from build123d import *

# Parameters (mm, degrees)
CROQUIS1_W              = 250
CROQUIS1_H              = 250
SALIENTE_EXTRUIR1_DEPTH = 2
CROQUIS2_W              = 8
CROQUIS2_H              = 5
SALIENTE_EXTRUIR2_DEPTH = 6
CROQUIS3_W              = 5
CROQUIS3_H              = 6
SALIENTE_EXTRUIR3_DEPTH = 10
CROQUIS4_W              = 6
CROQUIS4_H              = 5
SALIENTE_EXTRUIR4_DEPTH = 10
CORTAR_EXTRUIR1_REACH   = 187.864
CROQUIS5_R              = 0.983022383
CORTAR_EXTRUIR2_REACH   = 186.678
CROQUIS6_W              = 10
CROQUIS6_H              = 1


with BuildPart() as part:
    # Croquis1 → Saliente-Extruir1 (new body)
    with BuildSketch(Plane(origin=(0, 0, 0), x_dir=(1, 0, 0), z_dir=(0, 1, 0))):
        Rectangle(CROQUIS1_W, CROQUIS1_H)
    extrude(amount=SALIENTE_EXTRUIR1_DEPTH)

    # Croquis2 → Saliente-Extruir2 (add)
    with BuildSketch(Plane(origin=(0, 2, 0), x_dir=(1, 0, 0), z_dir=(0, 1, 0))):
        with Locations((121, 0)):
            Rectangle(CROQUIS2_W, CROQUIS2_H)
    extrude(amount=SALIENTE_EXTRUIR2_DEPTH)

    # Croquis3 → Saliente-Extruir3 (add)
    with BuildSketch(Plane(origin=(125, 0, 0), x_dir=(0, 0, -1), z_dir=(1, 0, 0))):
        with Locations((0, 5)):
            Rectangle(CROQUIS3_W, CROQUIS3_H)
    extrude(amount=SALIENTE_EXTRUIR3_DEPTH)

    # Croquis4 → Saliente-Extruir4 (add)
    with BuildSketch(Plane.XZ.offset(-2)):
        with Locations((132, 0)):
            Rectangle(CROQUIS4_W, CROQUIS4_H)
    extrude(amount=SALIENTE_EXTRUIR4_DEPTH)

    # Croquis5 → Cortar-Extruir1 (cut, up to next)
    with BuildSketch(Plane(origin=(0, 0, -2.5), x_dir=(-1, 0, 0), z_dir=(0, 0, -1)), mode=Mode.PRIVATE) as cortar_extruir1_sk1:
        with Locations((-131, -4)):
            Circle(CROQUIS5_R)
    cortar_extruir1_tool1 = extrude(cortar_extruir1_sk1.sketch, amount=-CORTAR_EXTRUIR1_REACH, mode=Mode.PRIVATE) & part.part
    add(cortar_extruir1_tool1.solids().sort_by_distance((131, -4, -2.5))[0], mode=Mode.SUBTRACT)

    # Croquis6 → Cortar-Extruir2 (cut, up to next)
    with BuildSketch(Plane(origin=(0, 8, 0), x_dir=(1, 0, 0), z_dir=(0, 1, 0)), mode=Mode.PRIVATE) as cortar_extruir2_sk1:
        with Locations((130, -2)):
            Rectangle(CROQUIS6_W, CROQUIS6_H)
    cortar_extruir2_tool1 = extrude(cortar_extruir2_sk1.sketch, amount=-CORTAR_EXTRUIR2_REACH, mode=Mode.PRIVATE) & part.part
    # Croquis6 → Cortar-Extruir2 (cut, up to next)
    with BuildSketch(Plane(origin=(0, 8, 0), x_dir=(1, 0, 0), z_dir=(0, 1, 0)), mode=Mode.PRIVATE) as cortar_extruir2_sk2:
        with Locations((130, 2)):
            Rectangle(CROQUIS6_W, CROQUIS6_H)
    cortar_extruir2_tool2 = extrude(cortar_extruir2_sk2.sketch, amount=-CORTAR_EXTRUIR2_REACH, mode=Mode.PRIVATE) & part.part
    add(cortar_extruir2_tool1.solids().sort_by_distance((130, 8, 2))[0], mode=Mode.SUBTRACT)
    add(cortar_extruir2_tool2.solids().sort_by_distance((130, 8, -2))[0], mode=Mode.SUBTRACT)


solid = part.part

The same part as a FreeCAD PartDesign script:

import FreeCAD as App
import Part
import Sketcher
from FreeCAD import Vector
Q = App.Units.Quantity

doc = App.newDocument("Part")
body = doc.addObject("PartDesign::Body", "Body")

# Sketch on XZ plane
sketch1 = body.newObject("Sketcher::SketchObject", "Sketch")
sketch1.AttachmentSupport = (doc.getObject("XZ_Plane"), [""])
sketch1.MapMode = "FlatFace"
sketch1.addGeometry([
    Part.LineSegment(Vector(-125, -125, 0), Vector(-125, 125, 0)),
    Part.LineSegment(Vector(-125, 125, 0), Vector(125, 125, 0)),
    Part.LineSegment(Vector(125, 125, 0), Vector(125, -125, 0)),
    Part.LineSegment(Vector(125, -125, 0), Vector(-125, -125, 0)),
], False)
sketch1.addConstraint([
    Sketcher.Constraint("Coincident", 0, 2, 1, 1),
    Sketcher.Constraint("Coincident", 1, 2, 2, 1),
    Sketcher.Constraint("Coincident", 2, 2, 3, 1),
    Sketcher.Constraint("Coincident", 3, 2, 0, 1),
    Sketcher.Constraint("Vertical", 0),
    Sketcher.Constraint("Horizontal", 1),
    Sketcher.Constraint("Vertical", 2),
    Sketcher.Constraint("Horizontal", 3),
    Sketcher.Constraint("Symmetric", 0, 2, 2, 2, -1, 1),
    Sketcher.Constraint("Equal", 3, 0),
    Sketcher.Constraint("DistanceX", 1, 1, 1, 2, Q("250 mm")),
])
pad1 = body.newObject("PartDesign::Pad", "Pad")
pad1.Profile = sketch1
pad1.Length = 2
pad1.Reversed = True

# Sketch on XZ plane
sketch2 = body.newObject("Sketcher::SketchObject", "Sketch001")
sketch2.AttachmentSupport = (doc.getObject("XZ_Plane"), [""])
sketch2.MapMode = "FlatFace"
sketch2.AttachmentOffset = App.Placement(Vector(0, 0, -2), App.Rotation())
sketch2.addGeometry([
    Part.LineSegment(Vector(117, -2, 0), Vector(117, 2, 0)),
    Part.LineSegment(Vector(117, 2, 0), Vector(125, 2, 0)),
    Part.LineSegment(Vector(125, 2, 0), Vector(125, -2, 0)),
    Part.LineSegment(Vector(125, -2, 0), Vector(117, -2, 0)),
], False)
sketch2.addConstraint([
    Sketcher.Constraint("Coincident", 0, 2, 1, 1),
    Sketcher.Constraint("Coincident", 1, 2, 2, 1),
    Sketcher.Constraint("Coincident", 2, 2, 3, 1),
    Sketcher.Constraint("Coincident", 3, 2, 0, 1),
    Sketcher.Constraint("Vertical", 0),
    Sketcher.Constraint("Horizontal", 1),
    Sketcher.Constraint("Vertical", 2),
    Sketcher.Constraint("Horizontal", 3),
    Sketcher.Constraint("DistanceX", 1, 1, 1, 2, Q("8 mm")),
    Sketcher.Constraint("DistanceY", 0, 1, 0, 2, Q("5 mm")),
    Sketcher.Constraint("DistanceX", -1, 1, 0, 2, Q("117 mm")),
    Sketcher.Constraint("DistanceY", -1, 1, 0, 2, Q("2.5 mm")),
])
pad2 = body.newObject("PartDesign::Pad", "Pad001")
pad2.Profile = sketch2
pad2.Length = 6
pad2.Reversed = True

# Sketch on YZ plane
sketch3 = body.newObject("Sketcher::SketchObject", "Sketch002")
sketch3.AttachmentSupport = (doc.getObject("YZ_Plane"), [""])
sketch3.MapMode = "FlatFace"
sketch3.AttachmentOffset = App.Placement(Vector(0, 0, 125), App.Rotation())
sketch3.addGeometry([
    Part.LineSegment(Vector(8, 2, 0), Vector(2, 2, 0)),
    Part.LineSegment(Vector(2, 2, 0), Vector(2, -2, 0)),
    Part.LineSegment(Vector(2, -2, 0), Vector(8, -2, 0)),
    Part.LineSegment(Vector(8, -2, 0), Vector(8, 2, 0)),
], False)
sketch3.addConstraint([
    Sketcher.Constraint("Coincident", 0, 2, 1, 1),
    Sketcher.Constraint("Coincident", 1, 2, 2, 1),
    Sketcher.Constraint("Coincident", 2, 2, 3, 1),
    Sketcher.Constraint("Coincident", 3, 2, 0, 1),
    Sketcher.Constraint("Horizontal", 0),
    Sketcher.Constraint("Vertical", 1),
    Sketcher.Constraint("Horizontal", 2),
    Sketcher.Constraint("Vertical", 3),
    Sketcher.Constraint("DistanceX", 0, 2, 0, 1, Q("6 mm")),
    Sketcher.Constraint("DistanceY", 1, 2, 1, 1, Q("5 mm")),
    Sketcher.Constraint("DistanceX", -1, 1, 0, 2, Q("2 mm")),
    Sketcher.Constraint("DistanceY", -1, 1, 0, 2, Q("2.5 mm")),
])
pad3 = body.newObject("PartDesign::Pad", "Pad002")
pad3.Profile = sketch3
pad3.Length = 10

# Sketch on XZ plane
sketch4 = body.newObject("Sketcher::SketchObject", "Sketch003")
sketch4.AttachmentSupport = (doc.getObject("XZ_Plane"), [""])
sketch4.MapMode = "FlatFace"
sketch4.AttachmentOffset = App.Placement(Vector(0, 0, -2), App.Rotation())
sketch4.addGeometry([
    Part.LineSegment(Vector(129, 2, 0), Vector(129, -2, 0)),
    Part.LineSegment(Vector(129, -2, 0), Vector(135, -2, 0)),
    Part.LineSegment(Vector(135, -2, 0), Vector(135, 2, 0)),
    Part.LineSegment(Vector(135, 2, 0), Vector(129, 2, 0)),
], False)
sketch4.addConstraint([
    Sketcher.Constraint("Coincident", 0, 2, 1, 1),
    Sketcher.Constraint("Coincident", 1, 2, 2, 1),
    Sketcher.Constraint("Coincident", 2, 2, 3, 1),
    Sketcher.Constraint("Coincident", 3, 2, 0, 1),
    Sketcher.Constraint("Vertical", 0),
    Sketcher.Constraint("Horizontal", 1),
    Sketcher.Constraint("Vertical", 2),
    Sketcher.Constraint("Horizontal", 3),
    Sketcher.Constraint("DistanceX", 1, 1, 1, 2, Q("6 mm")),
    Sketcher.Constraint("DistanceY", 0, 2, 0, 1, Q("5 mm")),
    Sketcher.Constraint("DistanceX", -1, 1, 0, 2, Q("129 mm")),
    Sketcher.Constraint("DistanceY", 0, 2, -1, 1, Q("2.5 mm")),
])
pad4 = body.newObject("PartDesign::Pad", "Pad003")
pad4.Profile = sketch4
pad4.Length = 10

# Sketch on XY plane
sketch5 = body.newObject("Sketcher::SketchObject", "Sketch004")
sketch5.AttachmentSupport = (doc.getObject("XY_Plane"), [""])
sketch5.MapMode = "FlatFace"
sketch5.AttachmentOffset = App.Placement(Vector(0, 0, -2.5), App.Rotation())
sketch5.addGeometry(Part.Circle(Vector(131, -4, 0), Vector(0, 0, 1), 1), False)
sketch5.addConstraint([
    Sketcher.Constraint("DistanceX", -1, 1, 0, 3, Q("131 mm")),
    Sketcher.Constraint("DistanceY", 0, 3, -1, 1, Q("4 mm")),
    Sketcher.Constraint("Diameter", 0, Q("1.966045 mm")),
])
pocket1 = body.newObject("PartDesign::Pocket", "Pocket")
pocket1.Profile = sketch5
pocket1.Type = "UpToFirst"
pocket1.Reversed = True

# Sketch on XZ plane
sketch6 = body.newObject("Sketcher::SketchObject", "Sketch005")
sketch6.AttachmentSupport = (doc.getObject("XZ_Plane"), [""])
sketch6.MapMode = "FlatFace"
sketch6.AttachmentOffset = App.Placement(Vector(0, 0, -8), App.Rotation())
sketch6.addGeometry([
    Part.LineSegment(Vector(125, 1.5, 0), Vector(125, 2.5, 0)),
    Part.LineSegment(Vector(125, 2.5, 0), Vector(135, 2.5, 0)),
    Part.LineSegment(Vector(135, 2.5, 0), Vector(135, 1.5, 0)),
    Part.LineSegment(Vector(135, 1.5, 0), Vector(125, 1.5, 0)),
], False)
sketch6.addConstraint([
    Sketcher.Constraint("Coincident", 0, 2, 1, 1),
    Sketcher.Constraint("Coincident", 1, 2, 2, 1),
    Sketcher.Constraint("Coincident", 2, 2, 3, 1),
    Sketcher.Constraint("Coincident", 3, 2, 0, 1),
    Sketcher.Constraint("Vertical", 0),
    Sketcher.Constraint("Horizontal", 1),
    Sketcher.Constraint("Vertical", 2),
    Sketcher.Constraint("Horizontal", 3),
    Sketcher.Constraint("DistanceX", 1, 1, 1, 2, Q("10 mm")),
    Sketcher.Constraint("DistanceY", 0, 1, 0, 2, Q("1 mm")),
    Sketcher.Constraint("DistanceX", -1, 1, 0, 2, Q("125 mm")),
    Sketcher.Constraint("DistanceY", -1, 1, 0, 2, Q("2.5 mm")),
])
pocket2 = body.newObject("PartDesign::Pocket", "Pocket001")
pocket2.Profile = sketch6
pocket2.Type = "UpToFirst"
pocket2.Reversed = True

# Sketch on XZ plane
sketch7 = body.newObject("Sketcher::SketchObject", "Sketch006")
sketch7.AttachmentSupport = (doc.getObject("XZ_Plane"), [""])
sketch7.MapMode = "FlatFace"
sketch7.AttachmentOffset = App.Placement(Vector(0, 0, -8), App.Rotation())
sketch7.addGeometry([
    Part.LineSegment(Vector(125, -2.5, 0), Vector(125, -1.5, 0)),
    Part.LineSegment(Vector(125, -1.5, 0), Vector(135, -1.5, 0)),
    Part.LineSegment(Vector(135, -1.5, 0), Vector(135, -2.5, 0)),
    Part.LineSegment(Vector(135, -2.5, 0), Vector(125, -2.5, 0)),
], False)
sketch7.addConstraint([
    Sketcher.Constraint("Coincident", 0, 2, 1, 1),
    Sketcher.Constraint("Coincident", 1, 2, 2, 1),
    Sketcher.Constraint("Coincident", 2, 2, 3, 1),
    Sketcher.Constraint("Coincident", 3, 2, 0, 1),
    Sketcher.Constraint("Vertical", 0),
    Sketcher.Constraint("Horizontal", 1),
    Sketcher.Constraint("Vertical", 2),
    Sketcher.Constraint("Horizontal", 3),
    Sketcher.Constraint("DistanceX", 1, 1, 1, 2, Q("10 mm")),
    Sketcher.Constraint("DistanceY", 0, 1, 0, 2, Q("1 mm")),
    Sketcher.Constraint("DistanceX", -1, 1, 0, 2, Q("125 mm")),
    Sketcher.Constraint("DistanceY", 0, 2, -1, 1, Q("1.5 mm")),
])
pocket3 = body.newObject("PartDesign::Pocket", "Pocket002")
pocket3.Profile = sketch7
pocket3.Type = "UpToFirst"
pocket3.Reversed = True

doc.recompute()
